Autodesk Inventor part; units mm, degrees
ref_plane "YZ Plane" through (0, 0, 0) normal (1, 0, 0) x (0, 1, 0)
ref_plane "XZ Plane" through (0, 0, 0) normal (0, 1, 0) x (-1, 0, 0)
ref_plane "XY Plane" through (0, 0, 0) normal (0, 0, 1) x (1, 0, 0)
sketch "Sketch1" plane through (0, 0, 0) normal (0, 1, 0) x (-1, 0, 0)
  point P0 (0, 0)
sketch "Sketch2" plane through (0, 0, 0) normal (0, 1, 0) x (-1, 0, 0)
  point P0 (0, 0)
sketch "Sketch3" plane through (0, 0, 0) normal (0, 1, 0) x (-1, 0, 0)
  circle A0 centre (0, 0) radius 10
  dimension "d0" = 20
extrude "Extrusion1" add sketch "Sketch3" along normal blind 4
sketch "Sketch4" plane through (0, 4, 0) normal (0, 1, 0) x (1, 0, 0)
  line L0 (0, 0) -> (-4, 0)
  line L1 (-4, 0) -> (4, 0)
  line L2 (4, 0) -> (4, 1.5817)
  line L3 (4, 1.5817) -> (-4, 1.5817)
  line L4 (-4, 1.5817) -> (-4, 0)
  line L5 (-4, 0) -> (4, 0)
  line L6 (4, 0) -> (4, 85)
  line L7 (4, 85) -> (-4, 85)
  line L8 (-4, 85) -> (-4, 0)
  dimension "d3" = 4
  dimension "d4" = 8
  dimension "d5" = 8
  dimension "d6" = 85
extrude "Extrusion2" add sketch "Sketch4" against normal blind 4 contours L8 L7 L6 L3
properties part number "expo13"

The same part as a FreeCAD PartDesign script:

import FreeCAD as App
import Part
import Sketcher

V = App.Vector


def add_polygon(sketch, points):
    """Adds a closed chain of lines whose ends are joined by coincident constraints."""
    first, n = sketch.GeometryCount, len(points)
    for a, b in zip(points, points[1:] + points[:1]):
        sketch.addGeometry(Part.LineSegment(App.Vector(*a, 0), App.Vector(*b, 0)), False)
    for i in range(n):
        sketch.addConstraint(Sketcher.Constraint("Coincident", first + i, 2, first + (i + 1) % n, 1))

doc = App.newDocument("Part")
body = doc.addObject("PartDesign::Body", "Body")

# Sketch on XZ plane
sketch1 = body.newObject("Sketcher::SketchObject", "Sketch")
sketch1.AttachmentSupport = (doc.getObject("XZ_Plane"), [""])
sketch1.MapMode = "FlatFace"
sketch1.addGeometry(Part.Circle(V(0, 0, 0), V(0, 0, 1), 10), False)
sketch1.addConstraint(Sketcher.Constraint("Coincident", 0, 3, -1, 1))
sketch1.addConstraint(Sketcher.Constraint("Diameter", 0, 20.0))
pad1 = body.newObject("PartDesign::Pad", "Pad")
pad1.Profile = sketch1
pad1.Length = 4
pad1.Reversed = True

# Sketch on XZ plane
sketch2 = body.newObject("Sketcher::SketchObject", "Sketch001")
sketch2.AttachmentSupport = (doc.getObject("XZ_Plane"), [""])
sketch2.MapMode = "FlatFace"
sketch2.AttachmentOffset = App.Placement(V(0, 0, -4), App.Rotation())
add_polygon(sketch2, [(-4, -85), (-4, -2), (4, -2), (4, -85)])  # lines 0-3
sketch2.addConstraint(Sketcher.Constraint("Vertical", 0))
sketch2.addConstraint(Sketcher.Constraint("Horizontal", 1))
sketch2.addConstraint(Sketcher.Constraint("Vertical", 2))
sketch2.addConstraint(Sketcher.Constraint("Horizontal", 3))
sketch2.addConstraint(Sketcher.Constraint("DistanceX", 1, 1, 1, 2, 8.0))
sketch2.addConstraint(Sketcher.Constraint("DistanceX", 0, 2, -1, 1, 4.0))
sketch2.addConstraint(Sketcher.Constraint("DistanceY", 2, 2, -1, 1, 85.0))
sketch2.addConstraint(Sketcher.Constraint("DistanceY", 0, 1, 0, 2, 83.4183))
pad2 = body.newObject("PartDesign::Pad", "Pad001")
pad2.Profile = sketch2
pad2.Length = 4

doc.recompute()
